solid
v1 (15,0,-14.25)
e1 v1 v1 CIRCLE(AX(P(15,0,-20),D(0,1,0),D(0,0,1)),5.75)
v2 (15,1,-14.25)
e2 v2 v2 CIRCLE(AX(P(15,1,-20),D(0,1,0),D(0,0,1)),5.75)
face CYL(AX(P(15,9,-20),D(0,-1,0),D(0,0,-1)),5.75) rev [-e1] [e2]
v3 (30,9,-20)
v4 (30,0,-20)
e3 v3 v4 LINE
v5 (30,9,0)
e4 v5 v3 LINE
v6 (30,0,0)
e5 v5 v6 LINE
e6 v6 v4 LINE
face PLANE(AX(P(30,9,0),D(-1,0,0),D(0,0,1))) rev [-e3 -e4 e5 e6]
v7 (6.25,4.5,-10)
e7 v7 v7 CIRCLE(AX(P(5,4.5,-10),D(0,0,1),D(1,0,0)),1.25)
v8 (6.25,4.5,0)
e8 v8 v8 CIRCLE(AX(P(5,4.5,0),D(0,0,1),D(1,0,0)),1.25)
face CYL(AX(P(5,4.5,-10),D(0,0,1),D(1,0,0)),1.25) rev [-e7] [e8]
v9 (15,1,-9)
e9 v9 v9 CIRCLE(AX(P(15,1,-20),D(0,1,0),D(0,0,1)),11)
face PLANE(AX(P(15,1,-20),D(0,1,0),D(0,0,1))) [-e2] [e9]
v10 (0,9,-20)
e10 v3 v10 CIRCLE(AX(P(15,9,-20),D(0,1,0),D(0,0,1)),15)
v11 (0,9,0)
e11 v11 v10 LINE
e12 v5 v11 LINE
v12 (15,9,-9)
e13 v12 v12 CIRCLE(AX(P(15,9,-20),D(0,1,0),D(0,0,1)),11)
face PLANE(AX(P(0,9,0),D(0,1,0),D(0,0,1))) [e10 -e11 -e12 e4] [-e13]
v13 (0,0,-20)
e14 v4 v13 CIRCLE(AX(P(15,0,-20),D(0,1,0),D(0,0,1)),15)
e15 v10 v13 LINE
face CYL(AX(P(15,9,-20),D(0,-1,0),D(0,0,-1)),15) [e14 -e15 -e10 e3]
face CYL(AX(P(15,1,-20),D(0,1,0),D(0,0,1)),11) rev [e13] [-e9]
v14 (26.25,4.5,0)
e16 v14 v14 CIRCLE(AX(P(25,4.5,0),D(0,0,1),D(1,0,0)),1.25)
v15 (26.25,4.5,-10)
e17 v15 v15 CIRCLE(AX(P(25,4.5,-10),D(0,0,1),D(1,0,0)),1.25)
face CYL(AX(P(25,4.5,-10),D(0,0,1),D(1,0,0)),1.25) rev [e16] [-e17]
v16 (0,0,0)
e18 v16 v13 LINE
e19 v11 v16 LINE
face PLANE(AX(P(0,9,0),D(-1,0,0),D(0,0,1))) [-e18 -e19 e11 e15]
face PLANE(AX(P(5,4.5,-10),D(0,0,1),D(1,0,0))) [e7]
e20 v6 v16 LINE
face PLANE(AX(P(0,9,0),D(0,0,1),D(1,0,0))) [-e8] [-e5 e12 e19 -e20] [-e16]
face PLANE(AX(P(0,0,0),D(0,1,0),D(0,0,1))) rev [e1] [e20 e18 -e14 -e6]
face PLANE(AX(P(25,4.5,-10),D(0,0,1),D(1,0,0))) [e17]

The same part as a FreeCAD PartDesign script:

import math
import FreeCAD as App
import Part
import Sketcher

doc = App.newDocument("Part")
params = doc.addObject("Spreadsheet::Sheet", "Params")
for row, (alias, value) in enumerate([
    ("sketch1_radius", "15 mm"),
    ("sketch1_diameter", "11.5 mm"),
    ("sketch1_height", "20 mm"),
    ("pad1_length", "9 mm"),
    ("sketch2_diameter", "22 mm"),
    ("pocket1_length", "8 mm"),
    ("sketch3_diameter", "2.5 mm"),
    ("pocket2_length", "10 mm"),
], start=1):
    params.set(f"A{row}", alias)
    params.set(f"B{row}", "=" + value)
    params.setAlias(f"B{row}", alias)

body = doc.addObject("PartDesign::Body", "Body")

# Sketch on XZ plane
sketch1 = body.newObject("Sketcher::SketchObject", "Sketch")
sketch1.AttachmentSupport = (doc.getObject("XZ_Plane"), [""])
sketch1.MapMode = "FlatFace"
sketch1.addGeometry(Part.LineSegment(App.Vector(30, 0, 0), App.Vector(30, -20, 0)), False)
sketch1.addGeometry(Part.ArcOfCircle(Part.Circle(App.Vector(15, -20, 0), App.Vector(0, 0, 1), 15), math.radians(180), math.radians(360)), False)
sketch1.addGeometry(Part.LineSegment(App.Vector(0, -20, 0), App.Vector(0, 0, 0)), False)
sketch1.addGeometry(Part.LineSegment(App.Vector(0, 0, 0), App.Vector(30, 0, 0)), False)
sketch1.addGeometry(Part.Circle(App.Vector(15, -20, 0), App.Vector(0, 0, 1), 6), False)
sketch1.addConstraint(Sketcher.Constraint("Tangent", 0, 2, 1, 2))
sketch1.addConstraint(Sketcher.Constraint("Tangent", 1, 1, 2, 1))
sketch1.addConstraint(Sketcher.Constraint("Coincident", 2, 2, 3, 1))
sketch1.addConstraint(Sketcher.Constraint("Coincident", 3, 2, 0, 1))
sketch1.addConstraint(Sketcher.Constraint("Vertical", 0))
sketch1.addConstraint(Sketcher.Constraint("Vertical", 2))
sketch1.addConstraint(Sketcher.Constraint("Horizontal", 3))
sketch1.addConstraint(Sketcher.Constraint("Coincident", 2, 2, -1, 1))
sketch1.addConstraint(Sketcher.Constraint("Coincident", 4, 3, 1, 3))
sketch1.addConstraint(Sketcher.Constraint("Radius", 1, 15.0))
sketch1.addConstraint(Sketcher.Constraint("Diameter", 4, 11.5))
sketch1.addConstraint(Sketcher.Constraint("DistanceY", 0, 2, 0, 1, 20.0))
sketch1.setExpression("Constraints[9]", "Params.sketch1_radius")
sketch1.setExpression("Constraints[10]", "Params.sketch1_diameter")
sketch1.setExpression("Constraints[11]", "Params.sketch1_height")
pad1 = body.newObject("PartDesign::Pad", "Pad")
pad1.Profile = sketch1
pad1.setExpression("Length", "Params.pad1_length")
pad1.Reversed = True

# Sketch on XZ plane
sketch2 = body.newObject("Sketcher::SketchObject", "Sketch001")
sketch2.AttachmentSupport = (doc.getObject("XZ_Plane"), [""])
sketch2.MapMode = "FlatFace"
sketch2.AttachmentOffset = App.Placement(App.Vector(0, 0, -9), App.Rotation())
sketch2.addGeometry(Part.Circle(App.Vector(15, -20, 0), App.Vector(0, 0, 1), 11), False)
sketch2.addConstraint(Sketcher.Constraint("Diameter", 0, 22.0))
sketch2.addConstraint(Sketcher.Constraint("DistanceX", -1, 1, 0, 3, 15.0))
sketch2.addConstraint(Sketcher.Constraint("DistanceY", 0, 3, -1, 1, 20.0))
sketch2.setExpression("Constraints[0]", "Params.sketch2_diameter")
pocket1 = body.newObject("PartDesign::Pocket", "Pocket")
pocket1.Profile = sketch2
pocket1.setExpression("Length", "Params.pocket1_length")
pocket1.Reversed = True

# Sketch on XY plane
sketch3 = body.newObject("Sketcher::SketchObject", "Sketch002")
sketch3.AttachmentSupport = (doc.getObject("XY_Plane"), [""])
sketch3.MapMode = "FlatFace"
sketch3.addGeometry(Part.Circle(App.Vector(25, 4.5, 0), App.Vector(0, 0, 1), 1.2), False)
sketch3.addGeometry(Part.Circle(App.Vector(5, 4.5, 0), App.Vector(0, 0, 1), 1.2), False)
sketch3.addConstraint(Sketcher.Constraint("Equal", 0, 1))
sketch3.addConstraint(Sketcher.Constraint("Horizontal", 0, 3, 1, 3))
sketch3.addConstraint(Sketcher.Constraint("Diameter", 0, 2.5))
sketch3.addConstraint(Sketcher.Constraint("DistanceX", -1, 1, 0, 3, 25.0))
sketch3.addConstraint(Sketcher.Constraint("DistanceX", -1, 1, 1, 3, 5.0))
sketch3.addConstraint(Sketcher.Constraint("DistanceY", -1, 1, 0, 3, 4.5))
sketch3.setExpression("Constraints[2]", "Params.sketch3_diameter")
pocket2 = body.newObject("PartDesign::Pocket", "Pocket001")
pocket2.Profile = sketch3
pocket2.setExpression("Length", "Params.pocket2_length")

doc.recompute()
